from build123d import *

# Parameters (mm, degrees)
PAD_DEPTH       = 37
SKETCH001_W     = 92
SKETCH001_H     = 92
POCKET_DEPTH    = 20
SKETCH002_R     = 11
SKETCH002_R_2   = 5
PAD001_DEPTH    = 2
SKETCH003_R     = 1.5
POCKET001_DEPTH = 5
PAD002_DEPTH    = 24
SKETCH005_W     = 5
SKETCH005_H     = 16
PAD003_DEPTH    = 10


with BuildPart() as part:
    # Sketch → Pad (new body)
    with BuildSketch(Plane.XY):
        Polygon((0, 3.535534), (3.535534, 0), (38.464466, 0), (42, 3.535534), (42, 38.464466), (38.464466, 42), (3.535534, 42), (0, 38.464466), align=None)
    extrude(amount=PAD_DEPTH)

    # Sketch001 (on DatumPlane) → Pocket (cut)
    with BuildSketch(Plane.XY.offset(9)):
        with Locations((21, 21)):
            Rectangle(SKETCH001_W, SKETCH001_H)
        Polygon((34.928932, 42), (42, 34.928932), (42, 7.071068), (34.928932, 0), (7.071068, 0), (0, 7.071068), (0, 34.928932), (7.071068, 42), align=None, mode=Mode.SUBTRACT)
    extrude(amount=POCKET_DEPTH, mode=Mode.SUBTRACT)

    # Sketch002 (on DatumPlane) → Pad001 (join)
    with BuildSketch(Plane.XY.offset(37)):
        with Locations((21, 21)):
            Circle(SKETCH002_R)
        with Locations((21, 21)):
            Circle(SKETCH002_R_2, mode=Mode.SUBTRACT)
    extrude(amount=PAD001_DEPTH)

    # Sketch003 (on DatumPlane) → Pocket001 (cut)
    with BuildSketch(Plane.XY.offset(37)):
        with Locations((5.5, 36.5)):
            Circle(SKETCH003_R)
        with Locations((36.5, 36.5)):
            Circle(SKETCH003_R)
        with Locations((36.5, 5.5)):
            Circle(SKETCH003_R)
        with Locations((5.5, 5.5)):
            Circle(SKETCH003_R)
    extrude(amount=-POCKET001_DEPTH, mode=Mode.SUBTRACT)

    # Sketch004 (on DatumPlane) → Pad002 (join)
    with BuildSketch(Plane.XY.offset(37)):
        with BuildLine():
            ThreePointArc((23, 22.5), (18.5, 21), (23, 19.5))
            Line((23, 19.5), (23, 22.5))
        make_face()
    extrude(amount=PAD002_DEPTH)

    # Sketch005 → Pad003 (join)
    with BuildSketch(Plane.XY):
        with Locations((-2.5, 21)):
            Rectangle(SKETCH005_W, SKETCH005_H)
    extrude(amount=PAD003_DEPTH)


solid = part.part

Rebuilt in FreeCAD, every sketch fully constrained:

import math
import FreeCAD as App
import Part
import Sketcher
Q = App.Units.Quantity


def add_polygon(sketch, points):
    """Adds a closed chain of lines whose ends are joined by coincident constraints."""
    first, n = sketch.GeometryCount, len(points)
    for a, b in zip(points, points[1:] + points[:1]):
        sketch.addGeometry(Part.LineSegment(App.Vector(*a, 0), App.Vector(*b, 0)), False)
    for i in range(n):
        sketch.addConstraint(Sketcher.Constraint("Coincident", first + i, 2, first + (i + 1) % n, 1))

doc = App.newDocument("Part")
params = doc.addObject("Spreadsheet::Sheet", "Params")
for row, (alias, value) in enumerate([
    ("sketch1_length", "5 mm"),
    ("pad1_length", "37 mm"),
    ("sketch2_width", "92 mm"),
    ("sketch2_length", "10 mm"),
    ("pocket1_length", "20 mm"),
    ("sketch3_diameter", "22 mm"),
    ("sketch3_diameter2", "10 mm"),
    ("pad2_length", "2 mm"),
    ("sketch4_diameter", "3 mm"),
    ("pocket2_length", "5 mm"),
    ("sketch5_radius", "2.5 mm"),
    ("sketch5_height", "3 mm"),
    ("pad3_length", "24 mm"),
    ("sketch6_width", "5 mm"),
    ("sketch6_height", "16 mm"),
    ("pad4_length", "10 mm"),
], start=1):
    params.set(f"A{row}", alias)
    params.set(f"B{row}", "=" + value)
    params.setAlias(f"B{row}", alias)

body = doc.addObject("PartDesign::Body", "Body")

# Sketch on XY plane
sketch1 = doc.addObject("Sketcher::SketchObject", "Sketch")
body.addObject(sketch1)
sketch1.AttachmentSupport = (doc.XY_Plane, [""])
sketch1.MapMode = "FlatFace"
add_polygon(sketch1, [(0, 4), (4, 0), (38, 0), (42, 4), (42, 38), (38, 42), (4, 42), (0, 38)])  # lines 0-7
sketch1.addConstraint([
    Sketcher.Constraint("Horizontal", 1),
    Sketcher.Constraint("Vertical", 3),
    Sketcher.Constraint("Horizontal", 5),
    Sketcher.Constraint("Vertical", 7),
    Sketcher.Constraint("PointOnObject", 0, 2, -1),
    Sketcher.Constraint("PointOnObject", 6, 2, -2),
    Sketcher.Constraint("Perpendicular", 0, 2),
    Sketcher.Constraint("Perpendicular", 2, 4),
    Sketcher.Constraint("Perpendicular", 4, 6),
    Sketcher.Constraint("Horizontal", 3, 2, 6, 2),
    Sketcher.Constraint("Horizontal", 2, 2, 7, 2),
    Sketcher.Constraint("Vertical", 1, 2, 4, 2),
    Sketcher.Constraint("Vertical", 0, 2, 5, 2),
    Sketcher.Constraint("Equal", 5, 3),
    Sketcher.Constraint("Distance", 0, Q("5 mm")),
    Sketcher.Constraint("DistanceX", -1, 1, 2, 2, Q("42 mm")),
])
sketch1.setExpression("Constraints[22]", "Params.sketch1_length")
pad1 = doc.addObject("PartDesign::Pad", "Pad")
body.addObject(pad1)
pad1.Profile = sketch1
pad1.setExpression("Length", "Params.pad1_length")

# Sketch on XY plane
sketch2 = doc.addObject("Sketcher::SketchObject", "Sketch001")
body.addObject(sketch2)
sketch2.AttachmentSupport = (doc.XY_Plane, [""])
sketch2.MapMode = "FlatFace"
sketch2.AttachmentOffset = App.Placement(App.Vector(0, 0, 9), App.Rotation())
add_polygon(sketch2, [(-25, 67), (-25, -25), (67, -25), (67, 67)])  # lines 0-3
add_polygon(sketch2, [(7, 42), (35, 42), (42, 35), (42, 7), (35, 0), (7, 0), (0, 7), (0, 35)])  # lines 4-11
sketch2.addConstraint([
    Sketcher.Constraint("Vertical", 0),
    Sketcher.Constraint("Horizontal", 1),
    Sketcher.Constraint("Vertical", 2),
    Sketcher.Constraint("Horizontal", 3),
    Sketcher.Constraint("Horizontal", 4),
    Sketcher.Constraint("Vertical", 6),
    Sketcher.Constraint("Horizontal", 8),
    Sketcher.Constraint("Vertical", 10),
    Sketcher.Constraint("PointOnObject", 7, 2, -1),
    Sketcher.Constraint("PointOnObject", 9, 2, -2),
    Sketcher.Constraint("Perpendicular", 5, 7),
    Sketcher.Constraint("Perpendicular", 7, 9),
    Sketcher.Constraint("Perpendicular", 9, 11),
    Sketcher.Constraint("Horizontal", 6, 2, 9, 2),
    Sketcher.Constraint("Horizontal", 5, 2, 10, 2),
    Sketcher.Constraint("Vertical", 4, 2, 7, 2),
    Sketcher.Constraint("Vertical", 8, 2, 11, 2),
    Sketcher.Constraint("Equal", 3, 0),
    Sketcher.Constraint("Equal", 8, 6),
    Sketcher.Constraint("DistanceX", 1, 1, 1, 2, Q("92 mm")),
    Sketcher.Constraint("Distance", 5, Q("10 mm")),
    Sketcher.Constraint("DistanceX", 0, 2, -1, 1, Q("25 mm")),
    Sketcher.Constraint("DistanceY", 0, 2, -1, 1, Q("25 mm")),
    Sketcher.Constraint("DistanceY", -1, 1, 4, 2, Q("42 mm")),
])
sketch2.setExpression("Constraints[31]", "Params.sketch2_width")
sketch2.setExpression("Constraints[32]", "Params.sketch2_length")
pocket1 = doc.addObject("PartDesign::Pocket", "Pocket")
body.addObject(pocket1)
pocket1.Profile = sketch2
pocket1.setExpression("Length", "Params.pocket1_length")
pocket1.Reversed = True

# Sketch on XY plane
sketch3 = doc.addObject("Sketcher::SketchObject", "Sketch002")
body.addObject(sketch3)
sketch3.AttachmentSupport = (doc.XY_Plane, [""])
sketch3.MapMode = "FlatFace"
sketch3.AttachmentOffset = App.Placement(App.Vector(0, 0, 37), App.Rotation())
sketch3.addGeometry([
    Part.Circle(App.Vector(21, 21, 0), App.Vector(0, 0, 1), 11),
    Part.Circle(App.Vector(21, 21, 0), App.Vector(0, 0, 1), 5),
], False)
sketch3.addConstraint([
    Sketcher.Constraint("Coincident", 1, 3, 0, 3),
    Sketcher.Constraint("Diameter", 0, Q("22 mm")),
    Sketcher.Constraint("Diameter", 1, Q("10 mm")),
    Sketcher.Constraint("DistanceX", -1, 1, 0, 3, Q("21 mm")),
    Sketcher.Constraint("DistanceY", -1, 1, 0, 3, Q("21 mm")),
])
sketch3.setExpression("Constraints[1]", "Params.sketch3_diameter")
sketch3.setExpression("Constraints[2]", "Params.sketch3_diameter2")
pad2 = doc.addObject("PartDesign::Pad", "Pad001")
body.addObject(pad2)
pad2.Profile = sketch3
pad2.setExpression("Length", "Params.pad2_length")

# Sketch on XY plane
sketch4 = doc.addObject("Sketcher::SketchObject", "Sketch003")
body.addObject(sketch4)
sketch4.AttachmentSupport = (doc.XY_Plane, [""])
sketch4.MapMode = "FlatFace"
sketch4.AttachmentOffset = App.Placement(App.Vector(0, 0, 37), App.Rotation())
sketch4.addGeometry([
    Part.Circle(App.Vector(5.5, 36.5, 0), App.Vector(0, 0, 1), 1.5),
    Part.Circle(App.Vector(36.5, 36.5, 0), App.Vector(0, 0, 1), 1.5),
    Part.Circle(App.Vector(36.5, 5.5, 0), App.Vector(0, 0, 1), 1.5),
    Part.Circle(App.Vector(5.5, 5.5, 0), App.Vector(0, 0, 1), 1.5),
], False)
sketch4.addConstraint([
    Sketcher.Constraint("Equal", 0, 1),
    Sketcher.Constraint("Equal", 1, 2),
    Sketcher.Constraint("Equal", 2, 3),
    Sketcher.Constraint("Horizontal", 0, 3, 1, 3),
    Sketcher.Constraint("Horizontal", 2, 3, 3, 3),
    Sketcher.Constraint("Vertical", 1, 3, 2, 3),
    Sketcher.Constraint("Vertical", 0, 3, 3, 3),
    Sketcher.Constraint("Diameter", 0, Q("3 mm")),
    Sketcher.Constraint("DistanceX", 0, 3, 1, 3, Q("31 mm")),
    Sketcher.Constraint("DistanceY", 2, 3, 1, 3, Q("31 mm")),
    Sketcher.Constraint("DistanceX", -1, 1, 0, 3, Q("5.5 mm")),
    Sketcher.Constraint("DistanceY", -1, 1, 0, 3, Q("36.5 mm")),
])
sketch4.setExpression("Constraints[7]", "Params.sketch4_diameter")
pocket2 = doc.addObject("PartDesign::Pocket", "Pocket001")
body.addObject(pocket2)
pocket2.Profile = sketch4
pocket2.setExpression("Length", "Params.pocket2_length")

# Sketch on XY plane
sketch5 = doc.addObject("Sketcher::SketchObject", "Sketch004")
body.addObject(sketch5)
sketch5.AttachmentSupport = (doc.XY_Plane, [""])
sketch5.MapMode = "FlatFace"
sketch5.AttachmentOffset = App.Placement(App.Vector(0, 0, 37), App.Rotation())
sketch5.addGeometry([
    Part.ArcOfCircle(Part.Circle(App.Vector(21, 21, 0), App.Vector(0, 0, 1), 2.5), math.radians(37), math.radians(323)),
    Part.LineSegment(App.Vector(23, 19.5, 0), App.Vector(23, 22.5, 0)),
], False)
sketch5.addConstraint([
    Sketcher.Constraint("Coincident", 0, 1, 1, 2),
    Sketcher.Constraint("Coincident", 1, 1, 0, 2),
    Sketcher.Constraint("Vertical", 1),
    Sketcher.Constraint("Radius", 0, Q("2.5 mm")),
    Sketcher.Constraint("DistanceY", 1, 1, 1, 2, Q("3 mm")),
    Sketcher.Constraint("DistanceX", -1, 1, 0, 3, Q("21 mm")),
    Sketcher.Constraint("DistanceY", -1, 1, 0, 3, Q("21 mm")),
])
sketch5.setExpression("Constraints[3]", "Params.sketch5_radius")
sketch5.setExpression("Constraints[4]", "Params.sketch5_height")
pad3 = doc.addObject("PartDesign::Pad", "Pad002")
body.addObject(pad3)
pad3.Profile = sketch5
pad3.setExpression("Length", "Params.pad3_length")

# Sketch on XY plane
sketch6 = doc.addObject("Sketcher::SketchObject", "Sketch005")
body.addObject(sketch6)
sketch6.AttachmentSupport = (doc.XY_Plane, [""])
sketch6.MapMode = "FlatFace"
add_polygon(sketch6, [(-5, 29), (-5, 13), (0, 13), (0, 29)])  # lines 0-3
sketch6.addConstraint([
    Sketcher.Constraint("Vertical", 0),
    Sketcher.Constraint("Horizontal", 1),
    Sketcher.Constraint("Vertical", 2),
    Sketcher.Constraint("Horizontal", 3),
    Sketcher.Constraint("PointOnObject", 1, 2, -2),
    Sketcher.Constraint("DistanceX", 1, 1, 1, 2, Q("5 mm")),
    Sketcher.Constraint("DistanceY", 0, 2, 0, 1, Q("16 mm")),
    Sketcher.Constraint("DistanceY", -1, 1, 0, 2, Q("13 mm")),
])
sketch6.setExpression("Constraints[9]", "Params.sketch6_width")
sketch6.setExpression("Constraints[10]", "Params.sketch6_height")
pad4 = doc.addObject("PartDesign::Pad", "Pad003")
body.addObject(pad4)
pad4.Profile = sketch6
pad4.setExpression("Length", "Params.pad4_length")

doc.recompute()
